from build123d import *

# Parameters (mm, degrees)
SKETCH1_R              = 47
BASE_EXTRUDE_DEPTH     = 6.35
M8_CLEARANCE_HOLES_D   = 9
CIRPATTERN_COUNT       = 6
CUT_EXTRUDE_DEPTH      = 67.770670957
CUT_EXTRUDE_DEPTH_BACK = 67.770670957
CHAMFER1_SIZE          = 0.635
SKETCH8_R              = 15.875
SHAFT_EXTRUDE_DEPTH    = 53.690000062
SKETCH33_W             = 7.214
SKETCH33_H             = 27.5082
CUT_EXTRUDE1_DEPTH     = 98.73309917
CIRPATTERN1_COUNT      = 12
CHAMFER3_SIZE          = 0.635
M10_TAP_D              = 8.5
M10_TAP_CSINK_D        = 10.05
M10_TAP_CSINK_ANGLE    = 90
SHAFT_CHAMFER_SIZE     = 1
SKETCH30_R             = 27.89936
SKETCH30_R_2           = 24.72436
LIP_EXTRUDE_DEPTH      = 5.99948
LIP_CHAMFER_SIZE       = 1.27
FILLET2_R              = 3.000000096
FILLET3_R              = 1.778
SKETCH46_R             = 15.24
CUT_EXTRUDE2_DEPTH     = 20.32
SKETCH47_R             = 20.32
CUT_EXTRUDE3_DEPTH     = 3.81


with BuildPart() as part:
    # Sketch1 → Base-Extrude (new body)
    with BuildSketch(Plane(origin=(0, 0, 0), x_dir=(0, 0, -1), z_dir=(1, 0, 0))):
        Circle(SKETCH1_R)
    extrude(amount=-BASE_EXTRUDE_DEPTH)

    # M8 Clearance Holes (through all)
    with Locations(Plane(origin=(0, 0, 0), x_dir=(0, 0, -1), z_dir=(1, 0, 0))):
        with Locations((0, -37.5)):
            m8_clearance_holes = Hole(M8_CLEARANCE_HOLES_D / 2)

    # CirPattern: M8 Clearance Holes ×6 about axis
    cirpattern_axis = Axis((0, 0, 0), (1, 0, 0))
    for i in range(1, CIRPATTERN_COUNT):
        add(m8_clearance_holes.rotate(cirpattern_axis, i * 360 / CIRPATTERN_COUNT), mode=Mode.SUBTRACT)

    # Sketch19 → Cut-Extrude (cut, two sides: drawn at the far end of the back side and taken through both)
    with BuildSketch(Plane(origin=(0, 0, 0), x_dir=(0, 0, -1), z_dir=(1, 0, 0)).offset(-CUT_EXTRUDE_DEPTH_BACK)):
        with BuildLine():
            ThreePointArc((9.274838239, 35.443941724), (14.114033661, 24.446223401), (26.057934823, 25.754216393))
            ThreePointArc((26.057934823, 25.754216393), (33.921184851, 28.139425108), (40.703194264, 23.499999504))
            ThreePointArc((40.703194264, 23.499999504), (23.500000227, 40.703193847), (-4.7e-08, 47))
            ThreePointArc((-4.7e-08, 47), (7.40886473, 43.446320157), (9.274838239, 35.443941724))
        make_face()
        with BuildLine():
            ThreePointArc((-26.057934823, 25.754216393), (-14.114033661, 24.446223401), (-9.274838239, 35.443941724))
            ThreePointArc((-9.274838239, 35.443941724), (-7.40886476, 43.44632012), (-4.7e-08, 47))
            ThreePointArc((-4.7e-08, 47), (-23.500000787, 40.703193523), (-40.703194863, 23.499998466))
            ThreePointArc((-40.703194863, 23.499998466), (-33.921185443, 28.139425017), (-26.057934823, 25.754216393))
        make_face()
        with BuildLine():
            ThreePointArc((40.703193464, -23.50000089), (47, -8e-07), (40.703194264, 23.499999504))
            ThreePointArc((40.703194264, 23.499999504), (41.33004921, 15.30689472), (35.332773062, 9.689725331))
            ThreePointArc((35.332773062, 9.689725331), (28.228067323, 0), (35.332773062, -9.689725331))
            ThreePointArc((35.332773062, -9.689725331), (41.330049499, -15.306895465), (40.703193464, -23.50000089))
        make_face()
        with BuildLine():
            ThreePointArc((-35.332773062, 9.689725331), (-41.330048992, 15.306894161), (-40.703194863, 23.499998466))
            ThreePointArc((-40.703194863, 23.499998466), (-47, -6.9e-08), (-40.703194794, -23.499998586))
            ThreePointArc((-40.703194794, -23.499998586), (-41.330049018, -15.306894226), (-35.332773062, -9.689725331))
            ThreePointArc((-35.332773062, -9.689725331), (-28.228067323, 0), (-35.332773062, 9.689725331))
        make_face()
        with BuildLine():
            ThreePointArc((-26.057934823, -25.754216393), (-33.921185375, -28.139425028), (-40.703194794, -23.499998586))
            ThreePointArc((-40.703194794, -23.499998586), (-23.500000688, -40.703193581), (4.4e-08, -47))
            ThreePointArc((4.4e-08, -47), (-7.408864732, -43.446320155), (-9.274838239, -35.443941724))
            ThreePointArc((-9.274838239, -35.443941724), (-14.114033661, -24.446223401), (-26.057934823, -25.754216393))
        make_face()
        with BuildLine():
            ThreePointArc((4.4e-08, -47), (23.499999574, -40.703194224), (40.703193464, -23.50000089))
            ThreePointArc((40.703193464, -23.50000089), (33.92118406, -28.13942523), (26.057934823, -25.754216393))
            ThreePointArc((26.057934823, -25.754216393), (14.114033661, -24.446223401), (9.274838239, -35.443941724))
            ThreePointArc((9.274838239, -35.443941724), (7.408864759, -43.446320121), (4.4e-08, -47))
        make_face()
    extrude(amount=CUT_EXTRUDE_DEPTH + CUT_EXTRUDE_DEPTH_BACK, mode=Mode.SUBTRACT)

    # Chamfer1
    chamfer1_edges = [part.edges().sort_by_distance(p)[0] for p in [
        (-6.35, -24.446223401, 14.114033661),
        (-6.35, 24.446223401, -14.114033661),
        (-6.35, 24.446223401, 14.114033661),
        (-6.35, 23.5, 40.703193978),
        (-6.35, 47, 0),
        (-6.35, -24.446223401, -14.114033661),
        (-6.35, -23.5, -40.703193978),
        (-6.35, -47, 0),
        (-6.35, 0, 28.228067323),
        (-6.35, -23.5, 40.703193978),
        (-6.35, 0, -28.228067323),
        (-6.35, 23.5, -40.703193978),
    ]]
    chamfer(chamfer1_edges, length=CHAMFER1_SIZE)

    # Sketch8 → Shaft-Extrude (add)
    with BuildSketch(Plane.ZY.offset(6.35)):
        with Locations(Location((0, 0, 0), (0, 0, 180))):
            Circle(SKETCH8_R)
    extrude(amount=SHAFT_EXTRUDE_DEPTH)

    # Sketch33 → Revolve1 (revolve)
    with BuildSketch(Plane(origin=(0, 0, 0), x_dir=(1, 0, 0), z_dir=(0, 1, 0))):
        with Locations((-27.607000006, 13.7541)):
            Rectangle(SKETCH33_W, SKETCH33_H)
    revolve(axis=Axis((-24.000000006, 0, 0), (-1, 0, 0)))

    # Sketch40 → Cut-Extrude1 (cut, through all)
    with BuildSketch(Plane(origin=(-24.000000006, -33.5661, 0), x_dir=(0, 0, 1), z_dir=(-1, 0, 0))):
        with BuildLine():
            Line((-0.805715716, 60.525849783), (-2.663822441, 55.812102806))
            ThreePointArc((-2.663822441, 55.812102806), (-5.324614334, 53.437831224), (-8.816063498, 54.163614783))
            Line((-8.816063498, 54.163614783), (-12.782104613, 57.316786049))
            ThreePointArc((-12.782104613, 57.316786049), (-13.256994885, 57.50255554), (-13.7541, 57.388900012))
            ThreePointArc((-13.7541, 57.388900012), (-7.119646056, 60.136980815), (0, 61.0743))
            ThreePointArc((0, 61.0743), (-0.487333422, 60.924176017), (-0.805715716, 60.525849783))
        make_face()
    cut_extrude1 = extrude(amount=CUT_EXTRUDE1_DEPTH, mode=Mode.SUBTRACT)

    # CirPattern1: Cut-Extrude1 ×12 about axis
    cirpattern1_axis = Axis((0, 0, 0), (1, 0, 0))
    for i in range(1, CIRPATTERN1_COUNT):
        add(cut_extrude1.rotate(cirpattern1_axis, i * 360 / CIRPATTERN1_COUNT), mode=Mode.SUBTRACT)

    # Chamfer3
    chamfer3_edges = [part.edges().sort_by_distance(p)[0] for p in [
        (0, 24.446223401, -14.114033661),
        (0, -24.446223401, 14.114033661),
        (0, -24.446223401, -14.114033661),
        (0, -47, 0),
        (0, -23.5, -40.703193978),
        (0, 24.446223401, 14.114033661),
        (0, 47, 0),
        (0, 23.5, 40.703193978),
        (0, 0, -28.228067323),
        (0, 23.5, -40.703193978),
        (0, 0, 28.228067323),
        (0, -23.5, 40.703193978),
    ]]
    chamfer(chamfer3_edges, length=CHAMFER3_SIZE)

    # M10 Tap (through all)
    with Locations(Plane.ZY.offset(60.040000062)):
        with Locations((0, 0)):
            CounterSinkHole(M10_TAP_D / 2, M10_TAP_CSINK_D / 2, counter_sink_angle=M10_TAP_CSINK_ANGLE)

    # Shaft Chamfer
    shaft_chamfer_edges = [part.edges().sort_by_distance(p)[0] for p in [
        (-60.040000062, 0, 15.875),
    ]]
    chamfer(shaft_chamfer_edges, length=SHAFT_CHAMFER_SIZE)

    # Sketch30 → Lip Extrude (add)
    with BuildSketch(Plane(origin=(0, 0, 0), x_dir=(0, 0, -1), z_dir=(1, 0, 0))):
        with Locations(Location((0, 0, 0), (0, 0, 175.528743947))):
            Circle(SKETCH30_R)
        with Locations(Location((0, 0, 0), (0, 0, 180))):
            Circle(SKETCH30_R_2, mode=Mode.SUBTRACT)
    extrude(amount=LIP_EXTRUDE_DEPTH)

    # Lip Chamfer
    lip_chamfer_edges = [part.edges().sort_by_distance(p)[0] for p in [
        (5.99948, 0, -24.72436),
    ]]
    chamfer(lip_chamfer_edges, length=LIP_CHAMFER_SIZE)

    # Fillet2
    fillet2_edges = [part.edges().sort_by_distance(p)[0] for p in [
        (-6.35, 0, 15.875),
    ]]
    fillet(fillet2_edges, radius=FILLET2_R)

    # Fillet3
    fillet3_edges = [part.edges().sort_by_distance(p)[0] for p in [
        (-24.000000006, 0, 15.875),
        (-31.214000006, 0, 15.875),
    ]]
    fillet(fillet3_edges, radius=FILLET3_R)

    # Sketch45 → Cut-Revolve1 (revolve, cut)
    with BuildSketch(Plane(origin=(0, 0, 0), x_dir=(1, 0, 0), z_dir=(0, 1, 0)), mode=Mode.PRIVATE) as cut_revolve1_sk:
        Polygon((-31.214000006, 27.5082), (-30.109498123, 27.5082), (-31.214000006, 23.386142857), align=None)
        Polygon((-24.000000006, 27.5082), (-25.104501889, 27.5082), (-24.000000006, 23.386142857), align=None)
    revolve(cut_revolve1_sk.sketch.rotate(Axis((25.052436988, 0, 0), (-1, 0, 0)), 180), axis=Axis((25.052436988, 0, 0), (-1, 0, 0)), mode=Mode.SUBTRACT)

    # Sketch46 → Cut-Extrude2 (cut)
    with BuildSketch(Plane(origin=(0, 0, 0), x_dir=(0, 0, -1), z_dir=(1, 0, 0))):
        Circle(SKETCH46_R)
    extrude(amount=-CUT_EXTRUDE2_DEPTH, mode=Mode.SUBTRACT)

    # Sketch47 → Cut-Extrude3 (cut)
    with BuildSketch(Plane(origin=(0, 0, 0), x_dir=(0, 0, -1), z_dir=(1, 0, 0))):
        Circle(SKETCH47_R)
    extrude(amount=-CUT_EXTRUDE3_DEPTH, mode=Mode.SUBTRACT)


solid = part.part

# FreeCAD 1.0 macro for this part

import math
import FreeCAD as App
import Part
import Sketcher
from FreeCAD import Vector
Q = App.Units.Quantity


def edges_at(feature, points):
    """Names of the edges that pass closest to the given points."""
    edges = feature.Shape.Edges
    near = lambda p: min(range(len(edges)), key=lambda i: edges[i].distToShape(Part.Vertex(*p))[0])
    return sorted({f"Edge{near(p) + 1}" for p in points})


def add_polygon(sketch, points):
    """Adds a closed chain of lines whose ends are joined by coincident constraints."""
    first, n = sketch.GeometryCount, len(points)
    for a, b in zip(points, points[1:] + points[:1]):
        sketch.addGeometry(Part.LineSegment(App.Vector(*a, 0), App.Vector(*b, 0)), False)
    for i in range(n):
        sketch.addConstraint(Sketcher.Constraint("Coincident", first + i, 2, first + (i + 1) % n, 1))

doc = App.newDocument("Part")
params = doc.addObject("Spreadsheet::Sheet", "Params")
for row, (alias, value) in enumerate([
    ("pad1_length", "0.25 in"),
    ("hole_diameter", "9 mm"),
    ("sketch3_radius", "0.4 in"),
    ("chamfer_size", "0.025 in"),
    ("sketch4_diameter", "1.25 in"),
    ("pad2_length", "53.69 mm"),
    ("sketch5_height", "1.083 in"),
    ("revolution_angle", "360 deg"),
    ("sketch6_radius", "1.083 in"),
    ("sketch6_radius2", "0.156 in"),
    ("chamfer2_size", "0.025 in"),
    ("hole2_diameter", "8.5 mm"),
    ("hole2_csink_diameter", "10.05 mm"),
    ("chamfer3_size", "1 mm"),
    ("pad3_length", "0.2362 in"),
    ("chamfer4_size", "0.05 in"),
    ("fillet_radius", "3 mm"),
    ("fillet2_radius", "0.07 in"),
    ("groove_angle", "360 deg"),
    ("sketch10_diameter", "1.2 in"),
    ("pocket3_length", "0.8 in"),
    ("sketch11_diameter", "1.6 in"),
    ("pocket4_length", "0.15 in"),
], start=1):
    params.set(f"A{row}", alias)
    params.set(f"B{row}", "=" + value)
    params.setAlias(f"B{row}", alias)

body = doc.addObject("PartDesign::Body", "Body")

sketch1 = doc.addObject("Sketcher::SketchObject", "Sketch")
body.addObject(sketch1)
sketch1.AttachmentSupport = (doc.YZ_Plane, [""])
sketch1.MapMode = "FlatFace"
sketch1.addGeometry(Part.Circle(Vector(0, 0, 0), Vector(0, 0, 1), 47), False)
sketch1.addConstraint(Sketcher.Constraint("Coincident", 0, 3, -1, 1))
sketch1.addConstraint(Sketcher.Constraint("Diameter", 0, Q("94 mm")))
pad1 = doc.addObject("PartDesign::Pad", "Pad")
body.addObject(pad1)
pad1.Profile = sketch1
pad1.setExpression("Length", "Params.pad1_length")
pad1.Reversed = True

sketch2 = doc.addObject("Sketcher::SketchObject", "Sketch001")
body.addObject(sketch2)
sketch2.AttachmentSupport = (doc.YZ_Plane, [""])
sketch2.MapMode = "FlatFace"
sketch2.addGeometry(Part.Circle(Vector(-37.5, 0, 0), Vector(0, 0, 1), 4.5), False)
sketch2.addConstraint(Sketcher.Constraint("PointOnObject", 0, 3, -1))
sketch2.addConstraint(Sketcher.Constraint("Diameter", 0, Q("9 mm")))
sketch2.addConstraint(Sketcher.Constraint("DistanceX", 0, 3, -1, 1, Q("37.5 mm")))
doc.recompute()
hole = doc.addObject("PartDesign::Hole", "Hole")
body.addObject(hole)
hole.Profile = sketch2
hole.ThreadType = "None"
hole.setExpression("Diameter", "Params.hole_diameter")
hole.DepthType = "ThroughAll"
doc.recompute()

polarpattern = doc.addObject("PartDesign::PolarPattern", "PolarPattern")
body.addObject(polarpattern)
polarpattern.Originals = [hole]
polarpattern.Axis = (doc.X_Axis, [""])
polarpattern.Angle = 360
polarpattern.Occurrences = 6
body.Tip = polarpattern

sketch3 = doc.addObject("Sketcher::SketchObject", "Sketch002")
body.addObject(sketch3)
sketch3.AttachmentSupport = (doc.YZ_Plane, [""])
sketch3.MapMode = "FlatFace"
sketch3.addGeometry(Part.ArcOfCircle(Part.Circle(Vector(33, -19, 0), Vector(0, 0, 1), 10), math.radians(78), math.radians(222)), False)
sketch3.addGeometry(Part.ArcOfCircle(Part.Circle(Vector(19, -32, 0), Vector(0, 0, 1), 10), math.radians(-60), math.radians(42)), False)
sketch3.addGeometry(Part.ArcOfCircle(Part.Circle(Vector(0, 0, 0), Vector(0, 0, 1), 47), math.radians(-60), math.radians(0)), False)
sketch3.addGeometry(Part.ArcOfCircle(Part.Circle(Vector(38, 0, 0), Vector(0, 0, 1), 10), math.radians(-102), math.radians(0)), False)
sketch3.addGeometry(Part.ArcOfCircle(Part.Circle(Vector(33, 19, 0), Vector(0, 0, 1), 10), math.radians(138), math.radians(282)), False)
sketch3.addGeometry(Part.ArcOfCircle(Part.Circle(Vector(38, 0, 0), Vector(0, 0, 1), 9), math.radians(0), math.radians(102)), False)
sketch3.addGeometry(Part.ArcOfCircle(Part.Circle(Vector(0, 0, 0), Vector(0, 0, 1), 47), math.radians(0), math.radians(60)), False)
sketch3.addGeometry(Part.ArcOfCircle(Part.Circle(Vector(19, 32, 0), Vector(0, 0, 1), 10), math.radians(-42), math.radians(60)), False)
sketch3.addGeometry(Part.ArcOfCircle(Part.Circle(Vector(0, 0, 0), Vector(0, 0, 1), 47), math.radians(-120), math.radians(-60)), False)
sketch3.addGeometry(Part.ArcOfCircle(Part.Circle(Vector(19, -32, 0), Vector(0, 0, 1), 9), math.radians(-162), math.radians(-60)), False)
sketch3.addGeometry(Part.ArcOfCircle(Part.Circle(Vector(0, -38, 0), Vector(0, 0, 1), 10), math.radians(18), math.radians(162)), False)
sketch3.addGeometry(Part.ArcOfCircle(Part.Circle(Vector(-19, -32, 0), Vector(0, 0, 1), 10), math.radians(-120), math.radians(-18)), False)
sketch3.addGeometry(Part.ArcOfCircle(Part.Circle(Vector(19, 32, 0), Vector(0, 0, 1), 9), math.radians(60), math.radians(162)), False)
sketch3.addGeometry(Part.ArcOfCircle(Part.Circle(Vector(0, 0, 0), Vector(0, 0, 1), 47), math.radians(60), math.radians(120)), False)
sketch3.addGeometry(Part.ArcOfCircle(Part.Circle(Vector(-19, 32, 0), Vector(0, 0, 1), 9), math.radians(18), math.radians(120)), False)
sketch3.addGeometry(Part.ArcOfCircle(Part.Circle(Vector(0, 38, 0), Vector(0, 0, 1), 10), math.radians(-162), math.radians(-18)), False)
sketch3.addGeometry(Part.ArcOfCircle(Part.Circle(Vector(-19, 32, 0), Vector(0, 0, 1), 9), math.radians(120), math.radians(222)), False)
sketch3.addGeometry(Part.ArcOfCircle(Part.Circle(Vector(0, 0, 0), Vector(0, 0, 1), 47), math.radians(120), math.radians(180)), False)
sketch3.addGeometry(Part.ArcOfCircle(Part.Circle(Vector(-38, 0, 0), Vector(0, 0, 1), 9), math.radians(78), math.radians(180)), False)
sketch3.addGeometry(Part.ArcOfCircle(Part.Circle(Vector(-33, 19, 0), Vector(0, 0, 1), 10), math.radians(-102), math.radians(42)), False)
sketch3.addGeometry(Part.ArcOfCircle(Part.Circle(Vector(0, 0, 0), Vector(0, 0, 1), 47), math.radians(-180), math.radians(-120)), False)
sketch3.addGeometry(Part.ArcOfCircle(Part.Circle(Vector(-19, -32, 0), Vector(0, 0, 1), 10), math.radians(138), math.radians(240)), False)
sketch3.addGeometry(Part.ArcOfCircle(Part.Circle(Vector(-33, -19, 0), Vector(0, 0, 1), 10), math.radians(-42), math.radians(102)), False)
sketch3.addGeometry(Part.ArcOfCircle(Part.Circle(Vector(-38, 0, 0), Vector(0, 0, 1), 10), math.radians(-180), math.radians(-78)), False)
sketch3.addConstraint(Sketcher.Constraint("Tangent", 0, 2, 1, 2))
sketch3.addConstraint(Sketcher.Constraint("Tangent", 1, 1, 2, 1))
sketch3.addConstraint(Sketcher.Constraint("Tangent", 2, 2, 3, 2))
sketch3.addConstraint(Sketcher.Constraint("Tangent", 3, 1, 0, 1))
sketch3.addConstraint(Sketcher.Constraint("Tangent", 4, 2, 5, 2))
sketch3.addConstraint(Sketcher.Constraint("Tangent", 5, 1, 6, 1))
sketch3.addConstraint(Sketcher.Constraint("Tangent", 6, 2, 7, 2))
sketch3.addConstraint(Sketcher.Constraint("Tangent", 7, 1, 4, 1))
sketch3.addConstraint(Sketcher.Constraint("Tangent", 8, 2, 9, 2))
sketch3.addConstraint(Sketcher.Constraint("Tangent", 9, 1, 10, 1))
sketch3.addConstraint(Sketcher.Constraint("Tangent", 10, 2, 11, 2))
sketch3.addConstraint(Sketcher.Constraint("Tangent", 11, 1, 8, 1))
sketch3.addConstraint(Sketcher.Constraint("Tangent", 12, 1, 13, 1))
sketch3.addConstraint(Sketcher.Constraint("Tangent", 13, 2, 14, 2))
sketch3.addConstraint(Sketcher.Constraint("Tangent", 14, 1, 15, 1))
sketch3.addConstraint(Sketcher.Constraint("Tangent", 15, 2, 12, 2))
sketch3.addConstraint(Sketcher.Constraint("Tangent", 16, 1, 17, 1))
sketch3.addConstraint(Sketcher.Constraint("Tangent", 17, 2, 18, 2))
sketch3.addConstraint(Sketcher.Constraint("Tangent", 18, 1, 19, 1))
sketch3.addConstraint(Sketcher.Constraint("Tangent", 19, 2, 16, 2))
sketch3.addConstraint(Sketcher.Constraint("Tangent", 20, 2, 21, 2))
sketch3.addConstraint(Sketcher.Constraint("Tangent", 21, 1, 22, 1))
sketch3.addConstraint(Sketcher.Constraint("Tangent", 22, 2, 23, 2))
sketch3.addConstraint(Sketcher.Constraint("Tangent", 23, 1, 20, 1))
sketch3.addConstraint(Sketcher.Constraint("Coincident", 2, 3, -1, 1))
sketch3.addConstraint(Sketcher.Constraint("Coincident", 6, 3, -1, 1))
sketch3.addConstraint(Sketcher.Constraint("Coincident", 8, 3, -1, 1))
sketch3.addConstraint(Sketcher.Constraint("Coincident", 13, 3, -1, 1))
sketch3.addConstraint(Sketcher.Constraint("Coincident", 17, 3, -1, 1))
sketch3.addConstraint(Sketcher.Constraint("Coincident", 20, 3, -1, 1))
sketch3.addConstraint(Sketcher.Constraint("Coincident", 5, 3, 3, 3))
sketch3.addConstraint(Sketcher.Constraint("Coincident", 9, 3, 1, 3))
sketch3.addConstraint(Sketcher.Constraint("Coincident", 12, 3, 7, 3))
sketch3.addConstraint(Sketcher.Constraint("Coincident", 16, 3, 14, 3))
sketch3.addConstraint(Sketcher.Constraint("Coincident", 21, 3, 11, 3))
sketch3.addConstraint(Sketcher.Constraint("Coincident", 23, 3, 18, 3))
sketch3.addConstraint(Sketcher.Constraint("Equal", 1, 3))
sketch3.addConstraint(Sketcher.Constraint("Equal", 0, 4))
sketch3.addConstraint(Sketcher.Constraint("Equal", 3, 5))
sketch3.addConstraint(Sketcher.Constraint("Equal", 5, 7))
sketch3.addConstraint(Sketcher.Constraint("Equal", 6, 8))
sketch3.addConstraint(Sketcher.Constraint("Equal", 4, 10))
sketch3.addConstraint(Sketcher.Constraint("Equal", 9, 11))
sketch3.addConstraint(Sketcher.Constraint("Equal", 11, 12))
sketch3.addConstraint(Sketcher.Constraint("Equal", 12, 14))
sketch3.addConstraint(Sketcher.Constraint("Equal", 10, 15))
sketch3.addConstraint(Sketcher.Constraint("Equal", 14, 16))
sketch3.addConstraint(Sketcher.Constraint("Equal", 16, 18))
sketch3.addConstraint(Sketcher.Constraint("Equal", 15, 19))
sketch3.addConstraint(Sketcher.Constraint("Equal", 17, 20))
sketch3.addConstraint(Sketcher.Constraint("Equal", 19, 22))
sketch3.addConstraint(Sketcher.Constraint("Symmetric", 10, 3, 15, 3, -1, 1))
sketch3.addConstraint(Sketcher.Constraint("Symmetric", 4, 3, 19, 3, -2))
sketch3.addConstraint(Sketcher.Constraint("PointOnObject", 3, 3, -1))
sketch3.addConstraint(Sketcher.Constraint("Radius", 0, Q("0.4 in")))
sketch3.addConstraint(Sketcher.Constraint("Radius", 1, Q("9.5 mm")))
sketch3.addConstraint(Sketcher.Constraint("Radius", 2, Q("47 mm")))
sketch3.addConstraint(Sketcher.Constraint("DistanceX", -1, 1, 1, 3, Q("18.75 mm")))
sketch3.setExpression("Constraints[54]", "Params.sketch3_radius")
pocket1 = doc.addObject("PartDesign::Pocket", "Pocket")
body.addObject(pocket1)
pocket1.Profile = sketch3
pocket1.Type = "ThroughAll"
pocket1.Midplane = True
doc.recompute()

chamfer = doc.addObject("PartDesign::Chamfer", "Chamfer")
body.addObject(chamfer)
chamfer.Base = (pocket1, edges_at(pocket1, [
    (-6.35, -24.446, 14.114),
    (-6.35, 24.446, -14.114),
    (-6.35, 24.446, 14.114),
    (-6.35, 28.139, 33.921),
    (-6.35, 43.446, 7.409),
    (-6.35, -24.446, -14.114),
    (-6.35, -15.307, -41.33),
    (-6.35, -43.446, -7.409),
    (-6.35, 0, 28.228),
    (-6.35, -28.139, 33.921),
    (-6.35, 0, -28.228),
    (-6.35, 28.139, -33.921),
]))
chamfer.setExpression("Size", "Params.chamfer_size")

sketch4 = doc.addObject("Sketcher::SketchObject", "Sketch003")
body.addObject(sketch4)
sketch4.AttachmentSupport = (doc.YZ_Plane, [""])
sketch4.MapMode = "FlatFace"
sketch4.AttachmentOffset = App.Placement(Vector(0, 0, -0.25 * 25.4), App.Rotation())
sketch4.addGeometry(Part.Circle(Vector(0, 0, 0), Vector(0, 0, 1), 16), False)
sketch4.addConstraint(Sketcher.Constraint("Coincident", 0, 3, -1, 1))
sketch4.addConstraint(Sketcher.Constraint("Diameter", 0, Q("1.25 in")))
sketch4.setExpression("Constraints[1]", "Params.sketch4_diameter")
pad2 = doc.addObject("PartDesign::Pad", "Pad001")
body.addObject(pad2)
pad2.Profile = sketch4
pad2.setExpression("Length", "Params.pad2_length")
pad2.Reversed = True

sketch5 = doc.addObject("Sketcher::SketchObject", "Sketch004")
body.addObject(sketch5)
sketch5.AttachmentSupport = (doc.XZ_Plane, [""])
sketch5.MapMode = "FlatFace"
add_polygon(sketch5, [(-31, -28), (-31, 0), (-24, 0), (-24, -28)])
sketch5.addConstraint(Sketcher.Constraint("Vertical", 0))
sketch5.addConstraint(Sketcher.Constraint("Horizontal", 1))
sketch5.addConstraint(Sketcher.Constraint("Vertical", 2))
sketch5.addConstraint(Sketcher.Constraint("Horizontal", 3))
sketch5.addConstraint(Sketcher.Constraint("PointOnObject", 0, 2, -1))
sketch5.addConstraint(Sketcher.Constraint("DistanceY", 0, 1, 0, 2, Q("1.083 in")))
sketch5.addConstraint(Sketcher.Constraint("DistanceX", 1, 1, 1, 2, Q("7.214 mm")))
sketch5.addConstraint(Sketcher.Constraint("DistanceX", 0, 2, -1, 1, Q("31.214 mm")))
sketch5.setExpression("Constraints[9]", "Params.sketch5_height")
revolution = doc.addObject("PartDesign::Revolution", "Revolution")
body.addObject(revolution)
revolution.Profile = sketch5
revolution.ReferenceAxis = (sketch5, ["H_Axis"])
revolution.setExpression("Angle", "Params.revolution_angle")

sketch6 = doc.addObject("Sketcher::SketchObject", "Sketch005")
body.addObject(sketch6)
sketch6.AttachmentSupport = (doc.YZ_Plane, [""])
sketch6.MapMode = "FlatFace"
sketch6.AttachmentOffset = App.Placement(Vector(0, 0, -24), App.Rotation())
sketch6.addGeometry(Part.LineSegment(Vector(22.2, -2.7, 0), Vector(27, -0.8, 0)), False)
sketch6.addGeometry(Part.ArcOfCircle(Part.Circle(Vector(26.6, 0, 0), Vector(0, 0, 1), 0.9), math.radians(-68), math.radians(0)), False)
sketch6.addGeometry(Part.ArcOfCircle(Part.Circle(Vector(0, 0, 0), Vector(0, 0, 1), 27.5), math.radians(-30), math.radians(0)), False)
sketch6.addGeometry(Part.ArcOfCircle(Part.Circle(Vector(23.1, -13.3, 0), Vector(0, 0, 1), 0.9), math.radians(-30), math.radians(38)), False)
sketch6.addGeometry(Part.LineSegment(Vector(23.8, -12.8, 0), Vector(20.6, -8.8, 0)), False)
sketch6.addGeometry(Part.ArcOfCircle(Part.Circle(Vector(23.7, -6.4, 0), Vector(0, 0, 1), 4), math.radians(112), math.radians(218)), False)
sketch6.addConstraint(Sketcher.Constraint("Tangent", 0, 2, 1, 1))
sketch6.addConstraint(Sketcher.Constraint("Tangent", 1, 2, 2, 2))
sketch6.addConstraint(Sketcher.Constraint("Tangent", 2, 1, 3, 1))
sketch6.addConstraint(Sketcher.Constraint("Tangent", 3, 2, 4, 1))
sketch6.addConstraint(Sketcher.Constraint("Tangent", 4, 2, 5, 2))
sketch6.addConstraint(Sketcher.Constraint("Tangent", 5, 1, 0, 1))
sketch6.addConstraint(Sketcher.Constraint("Coincident", 2, 3, -1, 1))
sketch6.addConstraint(Sketcher.Constraint("Equal", 1, 3))
sketch6.addConstraint(Sketcher.Constraint("PointOnObject", 1, 3, -1))
sketch6.addConstraint(Sketcher.Constraint("Equal", 0, 4))
sketch6.addConstraint(Sketcher.Constraint("Radius", 2, Q("1.083 in")))
sketch6.addConstraint(Sketcher.Constraint("Radius", 5, Q("0.156 in")))
sketch6.addConstraint(Sketcher.Constraint("DistanceY", 2, 1, -1, 1, Q("0.5415 in")))
sketch6.addConstraint(Sketcher.Constraint("Radius", 1, Q("0.866054 mm")))
sketch6.addConstraint(Sketcher.Constraint("DistanceX", 4, 2, 5, 3, Q("3.101601 mm")))
sketch6.setExpression("Constraints[10]", "Params.sketch6_radius")
sketch6.setExpression("Constraints[11]", "Params.sketch6_radius2")
pocket2 = doc.addObject("PartDesign::Pocket", "Pocket001")
body.addObject(pocket2)
pocket2.Profile = sketch6
pocket2.Type = "ThroughAll"
doc.recompute()

polarpattern2 = doc.addObject("PartDesign::PolarPattern", "PolarPattern001")
body.addObject(polarpattern2)
polarpattern2.Originals = [pocket2]
polarpattern2.Axis = (doc.X_Axis, [""])
polarpattern2.Angle = 360
polarpattern2.Occurrences = 12
body.Tip = polarpattern2
doc.recompute()

chamfer2 = doc.addObject("PartDesign::Chamfer", "Chamfer001")
body.addObject(chamfer2)
chamfer2.Base = (polarpattern2, edges_at(polarpattern2, [
    (0, 24.446, -14.114),
    (0, -24.446, 14.114),
    (0, -24.446, -14.114),
    (0, -43.446, -7.409),
    (0, -15.307, -41.33),
    (0, 24.446, 14.114),
    (0, 43.446, 7.409),
    (0, 28.139, 33.921),
    (0, 0, -28.228),
    (0, 28.139, -33.921),
    (0, 0, 28.228),
    (0, -28.139, 33.921),
]))
chamfer2.setExpression("Size", "Params.chamfer2_size")

sketch7 = doc.addObject("Sketcher::SketchObject", "Sketch006")
body.addObject(sketch7)
sketch7.AttachmentSupport = (doc.YZ_Plane, [""])
sketch7.MapMode = "FlatFace"
sketch7.AttachmentOffset = App.Placement(Vector(0, 0, -60.04), App.Rotation())
sketch7.addGeometry(Part.Circle(Vector(0, 0, 0), Vector(0, 0, 1), 4.2), False)
sketch7.addConstraint(Sketcher.Constraint("Coincident", 0, 3, -1, 1))
sketch7.addConstraint(Sketcher.Constraint("Diameter", 0, Q("8.5 mm")))
doc.recompute()
hole2 = doc.addObject("PartDesign::Hole", "Hole001")
body.addObject(hole2)
hole2.Profile = sketch7
hole2.ThreadType = "None"
hole2.setExpression("Diameter", "Params.hole2_diameter")
hole2.DepthType = "ThroughAll"
hole2.HoleCutType = "Countersink"
hole2.setExpression("HoleCutDiameter", "Params.hole2_csink_diameter")
hole2.HoleCutCountersinkAngle = 90
hole2.Reversed = True
doc.recompute()

chamfer3 = doc.addObject("PartDesign::Chamfer", "Chamfer002")
body.addObject(chamfer3)
chamfer3.Base = (hole2, edges_at(hole2, [(-60.04, 0, 15.875)]))
chamfer3.setExpression("Size", "Params.chamfer3_size")

sketch8 = doc.addObject("Sketcher::SketchObject", "Sketch007")
body.addObject(sketch8)
sketch8.AttachmentSupport = (doc.YZ_Plane, [""])
sketch8.MapMode = "FlatFace"
sketch8.addGeometry(Part.Circle(Vector(0, 0, 0), Vector(0, 0, 1), 28), False)
sketch8.addGeometry(Part.Circle(Vector(0, 0, 0), Vector(0, 0, 1), 25), False)
sketch8.addConstraint(Sketcher.Constraint("Coincident", 0, 3, -1, 1))
sketch8.addConstraint(Sketcher.Constraint("Coincident", 1, 3, -1, 1))
sketch8.addConstraint(Sketcher.Constraint("Diameter", 0, Q("2.1968 in")))
sketch8.addConstraint(Sketcher.Constraint("Diameter", 1, Q("1.9468 in")))
pad3 = doc.addObject("PartDesign::Pad", "Pad002")
body.addObject(pad3)
pad3.Profile = sketch8
pad3.setExpression("Length", "Params.pad3_length")
doc.recompute()

chamfer4 = doc.addObject("PartDesign::Chamfer", "Chamfer003")
body.addObject(chamfer4)
chamfer4.Base = (pad3, edges_at(pad3, [(5.999, 0, -24.724)]))
chamfer4.setExpression("Size", "Params.chamfer4_size")
doc.recompute()

fillet = doc.addObject("PartDesign::Fillet", "Fillet")
body.addObject(fillet)
fillet.Base = (chamfer4, edges_at(chamfer4, [(-6.35, 0, 15.875)]))
fillet.setExpression("Radius", "Params.fillet_radius")
doc.recompute()

fillet2 = doc.addObject("PartDesign::Fillet", "Fillet001")
body.addObject(fillet2)
fillet2.Base = (fillet, edges_at(fillet, [(-24, 0, 15.875), (-31.214, 0, 15.875)]))
fillet2.setExpression("Radius", "Params.fillet2_radius")

sketch9 = doc.addObject("Sketcher::SketchObject", "Sketch008")
body.addObject(sketch9)
sketch9.AttachmentSupport = (doc.XZ_Plane, [""])
sketch9.MapMode = "FlatFace"
add_polygon(sketch9, [(-30.1, -27.5), (-31.2, -27.5), (-31.2, -23.4)])
add_polygon(sketch9, [(-24, -27.5), (-25.1, -27.5), (-24, -23.4)])
sketch9.addConstraint(Sketcher.Constraint("Horizontal", 0))
sketch9.addConstraint(Sketcher.Constraint("Vertical", 1))
sketch9.addConstraint(Sketcher.Constraint("Horizontal", 3))
sketch9.addConstraint(Sketcher.Constraint("Vertical", 5))
sketch9.addConstraint(Sketcher.Constraint("Horizontal", 2, 2, 3, 2))
sketch9.addConstraint(Sketcher.Constraint("Horizontal", 1, 2, 4, 2))
sketch9.addConstraint(Sketcher.Constraint("Equal", 0, 3))
sketch9.addConstraint(Sketcher.Constraint("Angle", 2, Q("-75 deg")))
sketch9.addConstraint(Sketcher.Constraint("DistanceY", 0, 2, -1, 1, Q("1.083 in")))
sketch9.addConstraint(Sketcher.Constraint("DistanceX", 0, 2, 0, 1, Q("1.104502 mm")))
sketch9.addConstraint(Sketcher.Constraint("DistanceX", 0, 2, -1, 1, Q("31.214 mm")))
sketch9.addConstraint(Sketcher.Constraint("DistanceX", 3, 2, -1, 1, Q("25.104502 mm")))
groove = doc.addObject("PartDesign::Groove", "Groove")
body.addObject(groove)
groove.Profile = sketch9
groove.ReferenceAxis = (sketch9, ["H_Axis"])
groove.setExpression("Angle", "Params.groove_angle")

sketch10 = doc.addObject("Sketcher::SketchObject", "Sketch009")
body.addObject(sketch10)
sketch10.AttachmentSupport = (doc.YZ_Plane, [""])
sketch10.MapMode = "FlatFace"
sketch10.addGeometry(Part.Circle(Vector(0, 0, 0), Vector(0, 0, 1), 15), False)
sketch10.addConstraint(Sketcher.Constraint("Coincident", 0, 3, -1, 1))
sketch10.addConstraint(Sketcher.Constraint("Diameter", 0, Q("1.2 in")))
sketch10.setExpression("Constraints[1]", "Params.sketch10_diameter")
pocket3 = doc.addObject("PartDesign::Pocket", "Pocket002")
body.addObject(pocket3)
pocket3.Profile = sketch10
pocket3.setExpression("Length", "Params.pocket3_length")

sketch11 = doc.addObject("Sketcher::SketchObject", "Sketch010")
body.addObject(sketch11)
sketch11.AttachmentSupport = (doc.YZ_Plane, [""])
sketch11.MapMode = "FlatFace"
sketch11.addGeometry(Part.Circle(Vector(0, 0, 0), Vector(0, 0, 1), 20), False)
sketch11.addConstraint(Sketcher.Constraint("Coincident", 0, 3, -1, 1))
sketch11.addConstraint(Sketcher.Constraint("Diameter", 0, Q("1.6 in")))
sketch11.setExpression("Constraints[1]", "Params.sketch11_diameter")
pocket4 = doc.addObject("PartDesign::Pocket", "Pocket003")
body.addObject(pocket4)
pocket4.Profile = sketch11
pocket4.setExpression("Length", "Params.pocket4_length")

doc.recompute()
